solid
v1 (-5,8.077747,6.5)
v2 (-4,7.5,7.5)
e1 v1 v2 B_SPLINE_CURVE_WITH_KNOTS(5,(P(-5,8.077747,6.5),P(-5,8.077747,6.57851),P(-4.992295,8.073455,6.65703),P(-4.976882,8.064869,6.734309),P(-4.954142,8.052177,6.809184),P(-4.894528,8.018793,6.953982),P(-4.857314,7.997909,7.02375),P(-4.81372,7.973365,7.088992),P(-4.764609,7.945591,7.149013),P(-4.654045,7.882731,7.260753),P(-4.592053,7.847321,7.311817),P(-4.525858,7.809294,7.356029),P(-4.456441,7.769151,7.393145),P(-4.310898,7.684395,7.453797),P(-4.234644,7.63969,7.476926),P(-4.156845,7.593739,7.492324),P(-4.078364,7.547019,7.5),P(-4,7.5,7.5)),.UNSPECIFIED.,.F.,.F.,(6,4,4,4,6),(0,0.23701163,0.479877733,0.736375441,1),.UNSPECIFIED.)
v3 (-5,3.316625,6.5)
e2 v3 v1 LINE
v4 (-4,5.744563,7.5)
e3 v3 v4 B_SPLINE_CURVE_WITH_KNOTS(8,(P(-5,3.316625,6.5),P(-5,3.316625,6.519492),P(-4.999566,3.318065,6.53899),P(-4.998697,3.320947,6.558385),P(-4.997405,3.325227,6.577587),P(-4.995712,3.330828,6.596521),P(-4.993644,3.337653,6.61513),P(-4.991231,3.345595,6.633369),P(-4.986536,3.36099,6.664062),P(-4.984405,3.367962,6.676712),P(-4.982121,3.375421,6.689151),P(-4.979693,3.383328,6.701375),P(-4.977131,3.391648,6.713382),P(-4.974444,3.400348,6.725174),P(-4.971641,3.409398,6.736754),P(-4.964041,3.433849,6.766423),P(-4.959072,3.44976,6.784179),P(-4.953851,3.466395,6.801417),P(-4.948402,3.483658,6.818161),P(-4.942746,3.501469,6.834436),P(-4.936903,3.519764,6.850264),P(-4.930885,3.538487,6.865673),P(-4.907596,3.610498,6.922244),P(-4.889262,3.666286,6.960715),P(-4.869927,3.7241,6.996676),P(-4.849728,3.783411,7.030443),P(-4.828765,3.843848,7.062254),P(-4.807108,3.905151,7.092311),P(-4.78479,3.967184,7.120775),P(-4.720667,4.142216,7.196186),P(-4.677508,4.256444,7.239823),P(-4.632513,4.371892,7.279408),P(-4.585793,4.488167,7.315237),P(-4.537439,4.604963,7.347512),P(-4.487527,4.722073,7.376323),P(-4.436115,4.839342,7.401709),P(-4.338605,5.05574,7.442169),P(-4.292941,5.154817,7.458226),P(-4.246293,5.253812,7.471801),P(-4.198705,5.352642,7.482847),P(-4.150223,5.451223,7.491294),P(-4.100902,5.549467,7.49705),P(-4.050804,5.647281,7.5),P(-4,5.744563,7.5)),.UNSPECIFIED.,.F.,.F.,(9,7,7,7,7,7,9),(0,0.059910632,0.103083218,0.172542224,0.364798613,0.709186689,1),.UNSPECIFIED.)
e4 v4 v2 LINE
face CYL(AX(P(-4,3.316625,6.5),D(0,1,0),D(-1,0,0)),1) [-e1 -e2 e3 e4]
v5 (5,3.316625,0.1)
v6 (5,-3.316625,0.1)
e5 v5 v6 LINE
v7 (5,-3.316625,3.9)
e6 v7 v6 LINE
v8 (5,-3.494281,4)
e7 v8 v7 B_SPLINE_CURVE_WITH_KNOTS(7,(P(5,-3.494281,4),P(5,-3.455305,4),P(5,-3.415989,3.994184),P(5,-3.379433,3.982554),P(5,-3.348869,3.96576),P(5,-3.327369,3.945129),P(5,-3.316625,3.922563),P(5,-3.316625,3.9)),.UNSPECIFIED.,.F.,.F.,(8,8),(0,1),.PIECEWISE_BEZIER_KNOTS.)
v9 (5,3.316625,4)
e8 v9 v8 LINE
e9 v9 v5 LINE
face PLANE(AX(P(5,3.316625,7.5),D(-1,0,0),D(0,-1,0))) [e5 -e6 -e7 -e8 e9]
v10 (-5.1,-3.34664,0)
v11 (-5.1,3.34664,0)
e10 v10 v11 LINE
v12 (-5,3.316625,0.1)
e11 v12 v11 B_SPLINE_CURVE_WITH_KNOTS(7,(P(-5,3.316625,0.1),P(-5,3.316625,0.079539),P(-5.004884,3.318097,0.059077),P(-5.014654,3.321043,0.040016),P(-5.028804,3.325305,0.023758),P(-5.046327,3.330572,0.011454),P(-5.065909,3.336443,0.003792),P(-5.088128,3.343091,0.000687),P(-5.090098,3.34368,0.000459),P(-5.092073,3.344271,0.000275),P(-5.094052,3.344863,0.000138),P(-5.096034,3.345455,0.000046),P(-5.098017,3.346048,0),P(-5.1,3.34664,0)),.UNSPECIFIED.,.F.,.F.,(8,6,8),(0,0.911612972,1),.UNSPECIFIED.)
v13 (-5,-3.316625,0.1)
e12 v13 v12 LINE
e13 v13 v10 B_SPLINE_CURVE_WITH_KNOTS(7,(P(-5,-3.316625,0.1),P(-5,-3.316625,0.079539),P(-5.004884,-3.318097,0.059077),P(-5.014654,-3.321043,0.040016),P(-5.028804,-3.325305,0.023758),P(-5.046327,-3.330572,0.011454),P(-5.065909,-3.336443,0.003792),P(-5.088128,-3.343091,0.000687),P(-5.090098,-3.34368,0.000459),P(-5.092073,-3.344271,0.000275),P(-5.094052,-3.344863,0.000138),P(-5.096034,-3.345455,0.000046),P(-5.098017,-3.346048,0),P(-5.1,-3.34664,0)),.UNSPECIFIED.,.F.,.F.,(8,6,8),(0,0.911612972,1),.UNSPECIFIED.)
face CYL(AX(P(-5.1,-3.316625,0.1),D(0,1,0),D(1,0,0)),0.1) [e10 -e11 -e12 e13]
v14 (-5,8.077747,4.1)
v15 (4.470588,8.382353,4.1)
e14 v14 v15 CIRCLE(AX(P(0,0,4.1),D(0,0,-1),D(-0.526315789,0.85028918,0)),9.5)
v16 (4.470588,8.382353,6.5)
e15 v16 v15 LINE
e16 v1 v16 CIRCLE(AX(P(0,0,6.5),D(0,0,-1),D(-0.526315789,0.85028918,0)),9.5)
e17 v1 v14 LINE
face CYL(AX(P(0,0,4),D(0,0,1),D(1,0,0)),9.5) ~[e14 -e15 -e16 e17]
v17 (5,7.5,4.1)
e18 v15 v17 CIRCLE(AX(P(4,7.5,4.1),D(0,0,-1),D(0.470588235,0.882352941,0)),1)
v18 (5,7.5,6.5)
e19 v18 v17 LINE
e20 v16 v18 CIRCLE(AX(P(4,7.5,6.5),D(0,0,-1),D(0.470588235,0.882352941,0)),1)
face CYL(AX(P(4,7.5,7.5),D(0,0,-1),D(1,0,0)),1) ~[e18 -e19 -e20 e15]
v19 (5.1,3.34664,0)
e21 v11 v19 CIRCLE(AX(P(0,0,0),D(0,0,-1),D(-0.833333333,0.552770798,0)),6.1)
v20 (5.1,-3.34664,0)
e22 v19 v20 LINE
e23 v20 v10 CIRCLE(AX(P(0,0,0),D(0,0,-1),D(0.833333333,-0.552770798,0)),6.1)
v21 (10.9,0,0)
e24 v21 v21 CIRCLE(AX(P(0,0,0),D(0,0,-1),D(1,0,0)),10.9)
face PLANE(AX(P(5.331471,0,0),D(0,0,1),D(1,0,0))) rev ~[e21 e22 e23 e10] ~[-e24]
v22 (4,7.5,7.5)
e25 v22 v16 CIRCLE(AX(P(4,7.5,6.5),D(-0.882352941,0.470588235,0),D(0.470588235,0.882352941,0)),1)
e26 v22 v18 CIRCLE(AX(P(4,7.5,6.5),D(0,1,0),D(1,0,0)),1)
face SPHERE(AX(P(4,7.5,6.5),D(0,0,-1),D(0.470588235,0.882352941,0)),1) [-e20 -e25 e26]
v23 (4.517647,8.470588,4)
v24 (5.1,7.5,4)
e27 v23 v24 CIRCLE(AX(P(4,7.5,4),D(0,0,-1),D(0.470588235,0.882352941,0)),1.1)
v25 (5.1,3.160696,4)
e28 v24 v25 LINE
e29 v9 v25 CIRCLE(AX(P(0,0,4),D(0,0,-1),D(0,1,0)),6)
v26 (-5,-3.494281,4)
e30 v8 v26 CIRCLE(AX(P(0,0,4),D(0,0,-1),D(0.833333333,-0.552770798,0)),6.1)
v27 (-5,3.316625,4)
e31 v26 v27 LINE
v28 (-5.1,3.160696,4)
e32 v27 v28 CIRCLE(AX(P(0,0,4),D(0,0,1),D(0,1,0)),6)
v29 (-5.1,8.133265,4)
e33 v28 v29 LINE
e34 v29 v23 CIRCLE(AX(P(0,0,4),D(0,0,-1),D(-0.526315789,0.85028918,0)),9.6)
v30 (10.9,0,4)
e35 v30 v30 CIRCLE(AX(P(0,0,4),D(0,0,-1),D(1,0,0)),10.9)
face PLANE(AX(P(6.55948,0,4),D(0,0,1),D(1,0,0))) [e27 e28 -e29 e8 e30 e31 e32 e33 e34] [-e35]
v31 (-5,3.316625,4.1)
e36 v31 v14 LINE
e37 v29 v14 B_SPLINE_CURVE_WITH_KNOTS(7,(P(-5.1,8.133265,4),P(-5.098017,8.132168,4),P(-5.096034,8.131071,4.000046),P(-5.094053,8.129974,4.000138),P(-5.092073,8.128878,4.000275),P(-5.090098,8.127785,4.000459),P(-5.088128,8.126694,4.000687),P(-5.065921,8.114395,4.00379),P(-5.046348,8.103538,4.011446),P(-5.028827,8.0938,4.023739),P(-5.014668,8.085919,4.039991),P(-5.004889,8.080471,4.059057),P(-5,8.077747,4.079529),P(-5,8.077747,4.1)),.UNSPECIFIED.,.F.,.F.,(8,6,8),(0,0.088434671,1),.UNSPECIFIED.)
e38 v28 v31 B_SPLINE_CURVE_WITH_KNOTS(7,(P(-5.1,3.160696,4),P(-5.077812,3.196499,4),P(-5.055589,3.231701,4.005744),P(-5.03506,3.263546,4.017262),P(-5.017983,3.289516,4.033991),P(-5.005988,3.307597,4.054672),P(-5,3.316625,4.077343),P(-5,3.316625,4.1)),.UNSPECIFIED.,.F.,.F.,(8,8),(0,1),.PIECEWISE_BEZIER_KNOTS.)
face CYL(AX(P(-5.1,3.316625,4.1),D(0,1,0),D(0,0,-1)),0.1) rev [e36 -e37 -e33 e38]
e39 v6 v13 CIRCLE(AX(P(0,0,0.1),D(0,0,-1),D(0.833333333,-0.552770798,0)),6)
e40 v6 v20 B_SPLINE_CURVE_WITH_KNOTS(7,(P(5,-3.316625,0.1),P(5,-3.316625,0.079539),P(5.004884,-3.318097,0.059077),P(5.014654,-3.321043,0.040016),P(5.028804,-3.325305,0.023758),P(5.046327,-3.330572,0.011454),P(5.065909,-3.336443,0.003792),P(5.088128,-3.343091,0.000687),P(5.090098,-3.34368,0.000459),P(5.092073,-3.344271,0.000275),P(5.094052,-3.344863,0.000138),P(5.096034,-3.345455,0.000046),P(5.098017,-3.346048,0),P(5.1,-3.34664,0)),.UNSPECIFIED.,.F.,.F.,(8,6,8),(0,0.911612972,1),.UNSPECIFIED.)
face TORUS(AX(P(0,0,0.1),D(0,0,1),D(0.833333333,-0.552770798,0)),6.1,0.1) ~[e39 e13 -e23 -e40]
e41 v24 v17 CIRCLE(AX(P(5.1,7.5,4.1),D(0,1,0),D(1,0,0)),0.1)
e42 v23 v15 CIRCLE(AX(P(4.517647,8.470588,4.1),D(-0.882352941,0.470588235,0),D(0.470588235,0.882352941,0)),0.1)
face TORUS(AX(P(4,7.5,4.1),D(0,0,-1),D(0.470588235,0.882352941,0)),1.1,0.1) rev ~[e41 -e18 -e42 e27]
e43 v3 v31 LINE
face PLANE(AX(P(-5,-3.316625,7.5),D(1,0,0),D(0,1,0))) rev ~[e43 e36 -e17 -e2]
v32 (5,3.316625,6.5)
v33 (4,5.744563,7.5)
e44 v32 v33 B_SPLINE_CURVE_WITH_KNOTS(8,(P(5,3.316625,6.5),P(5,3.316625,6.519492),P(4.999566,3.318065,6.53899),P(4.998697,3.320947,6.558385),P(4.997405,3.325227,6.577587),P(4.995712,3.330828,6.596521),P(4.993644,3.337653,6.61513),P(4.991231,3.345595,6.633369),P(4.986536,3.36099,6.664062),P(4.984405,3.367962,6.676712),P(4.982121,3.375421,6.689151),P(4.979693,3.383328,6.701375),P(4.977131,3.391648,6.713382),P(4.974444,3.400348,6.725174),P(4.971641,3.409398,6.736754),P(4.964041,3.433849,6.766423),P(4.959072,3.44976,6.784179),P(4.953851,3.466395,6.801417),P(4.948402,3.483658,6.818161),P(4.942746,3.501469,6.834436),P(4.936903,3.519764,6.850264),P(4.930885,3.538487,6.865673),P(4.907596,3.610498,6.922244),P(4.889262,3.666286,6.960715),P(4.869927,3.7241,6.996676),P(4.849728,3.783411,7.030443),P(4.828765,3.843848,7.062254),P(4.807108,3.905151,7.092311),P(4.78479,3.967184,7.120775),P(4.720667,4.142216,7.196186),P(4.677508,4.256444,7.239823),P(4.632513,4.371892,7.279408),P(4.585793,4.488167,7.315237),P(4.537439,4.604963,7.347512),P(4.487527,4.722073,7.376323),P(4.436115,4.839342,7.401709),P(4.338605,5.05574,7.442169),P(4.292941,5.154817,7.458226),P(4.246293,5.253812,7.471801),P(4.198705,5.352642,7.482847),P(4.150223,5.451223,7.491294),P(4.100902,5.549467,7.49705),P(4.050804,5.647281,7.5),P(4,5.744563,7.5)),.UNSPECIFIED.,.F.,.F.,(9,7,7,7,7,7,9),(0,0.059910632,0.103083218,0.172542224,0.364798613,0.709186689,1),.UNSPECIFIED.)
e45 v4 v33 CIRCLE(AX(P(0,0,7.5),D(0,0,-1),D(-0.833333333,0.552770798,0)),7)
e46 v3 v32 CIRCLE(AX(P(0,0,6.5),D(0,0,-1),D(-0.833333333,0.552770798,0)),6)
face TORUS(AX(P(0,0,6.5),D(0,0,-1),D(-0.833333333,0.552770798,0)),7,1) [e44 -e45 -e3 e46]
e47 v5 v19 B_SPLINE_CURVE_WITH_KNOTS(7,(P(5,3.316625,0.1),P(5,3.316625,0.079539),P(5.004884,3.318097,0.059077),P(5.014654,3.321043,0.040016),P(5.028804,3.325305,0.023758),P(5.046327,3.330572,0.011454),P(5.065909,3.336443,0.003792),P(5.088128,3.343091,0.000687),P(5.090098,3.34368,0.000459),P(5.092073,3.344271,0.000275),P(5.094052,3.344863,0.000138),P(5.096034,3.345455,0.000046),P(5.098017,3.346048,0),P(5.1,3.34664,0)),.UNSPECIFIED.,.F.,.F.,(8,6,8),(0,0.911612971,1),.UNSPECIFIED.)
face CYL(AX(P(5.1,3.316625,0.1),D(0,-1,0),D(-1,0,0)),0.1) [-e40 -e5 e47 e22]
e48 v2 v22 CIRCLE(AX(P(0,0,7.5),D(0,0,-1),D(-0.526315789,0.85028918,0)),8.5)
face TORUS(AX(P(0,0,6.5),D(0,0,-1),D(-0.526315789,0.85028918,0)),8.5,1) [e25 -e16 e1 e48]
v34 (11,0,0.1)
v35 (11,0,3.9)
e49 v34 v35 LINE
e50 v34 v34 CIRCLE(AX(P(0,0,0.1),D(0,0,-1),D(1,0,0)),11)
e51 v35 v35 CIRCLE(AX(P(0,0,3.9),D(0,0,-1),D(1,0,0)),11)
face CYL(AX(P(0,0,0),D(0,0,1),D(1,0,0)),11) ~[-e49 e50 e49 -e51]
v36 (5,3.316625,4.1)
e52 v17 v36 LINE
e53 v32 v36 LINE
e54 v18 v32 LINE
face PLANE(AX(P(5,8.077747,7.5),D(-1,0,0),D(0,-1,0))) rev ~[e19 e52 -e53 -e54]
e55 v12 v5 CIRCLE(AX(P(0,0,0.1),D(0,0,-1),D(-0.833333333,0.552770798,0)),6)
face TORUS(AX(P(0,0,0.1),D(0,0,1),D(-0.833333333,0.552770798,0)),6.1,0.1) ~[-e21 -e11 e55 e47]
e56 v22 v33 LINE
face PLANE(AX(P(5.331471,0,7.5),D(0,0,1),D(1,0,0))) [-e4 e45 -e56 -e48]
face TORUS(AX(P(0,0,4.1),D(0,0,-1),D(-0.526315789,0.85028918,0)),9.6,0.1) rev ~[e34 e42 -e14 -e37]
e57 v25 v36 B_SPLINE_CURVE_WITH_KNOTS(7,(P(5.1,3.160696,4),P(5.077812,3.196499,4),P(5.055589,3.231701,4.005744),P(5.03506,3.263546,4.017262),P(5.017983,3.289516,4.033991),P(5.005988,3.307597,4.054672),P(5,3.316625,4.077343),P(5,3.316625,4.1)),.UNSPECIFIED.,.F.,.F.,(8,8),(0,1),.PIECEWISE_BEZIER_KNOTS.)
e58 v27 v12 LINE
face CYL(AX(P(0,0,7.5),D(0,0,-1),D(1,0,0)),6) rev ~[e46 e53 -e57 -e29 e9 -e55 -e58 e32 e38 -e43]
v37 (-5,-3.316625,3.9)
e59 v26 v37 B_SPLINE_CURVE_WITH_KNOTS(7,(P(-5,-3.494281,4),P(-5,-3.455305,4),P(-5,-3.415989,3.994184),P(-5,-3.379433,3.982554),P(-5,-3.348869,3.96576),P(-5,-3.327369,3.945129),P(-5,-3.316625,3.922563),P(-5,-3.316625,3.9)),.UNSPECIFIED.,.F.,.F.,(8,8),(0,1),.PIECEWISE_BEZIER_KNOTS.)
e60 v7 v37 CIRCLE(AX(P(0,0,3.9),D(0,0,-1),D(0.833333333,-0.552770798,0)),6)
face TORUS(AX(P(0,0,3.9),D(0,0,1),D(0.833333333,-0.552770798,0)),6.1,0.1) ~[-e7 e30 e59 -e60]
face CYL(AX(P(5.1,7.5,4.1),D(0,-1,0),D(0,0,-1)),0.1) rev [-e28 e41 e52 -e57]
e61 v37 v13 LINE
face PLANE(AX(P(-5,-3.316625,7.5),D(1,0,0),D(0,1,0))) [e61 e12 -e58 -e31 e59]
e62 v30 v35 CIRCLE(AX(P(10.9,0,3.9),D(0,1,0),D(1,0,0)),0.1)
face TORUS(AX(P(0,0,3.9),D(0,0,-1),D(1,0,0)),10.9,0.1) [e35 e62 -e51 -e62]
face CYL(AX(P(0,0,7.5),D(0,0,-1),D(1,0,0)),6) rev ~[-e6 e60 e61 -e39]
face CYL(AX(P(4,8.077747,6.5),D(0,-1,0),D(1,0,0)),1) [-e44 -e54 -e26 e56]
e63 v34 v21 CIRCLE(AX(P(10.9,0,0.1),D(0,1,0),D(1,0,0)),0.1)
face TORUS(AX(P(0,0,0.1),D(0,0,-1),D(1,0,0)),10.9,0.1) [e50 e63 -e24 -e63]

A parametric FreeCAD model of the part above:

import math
import FreeCAD as App
import Part
import Sketcher
Q = App.Units.Quantity


def edges_at(feature, points):
    """Names of the edges that pass closest to the given points."""
    edges = feature.Shape.Edges
    near = lambda p: min(range(len(edges)), key=lambda i: edges[i].distToShape(Part.Vertex(*p))[0])
    return sorted({f"Edge{near(p) + 1}" for p in points})


def add_polygon(sketch, points):
    """Adds a closed chain of lines whose ends are joined by coincident constraints."""
    first, n = sketch.GeometryCount, len(points)
    for a, b in zip(points, points[1:] + points[:1]):
        sketch.addGeometry(Part.LineSegment(App.Vector(*a, 0), App.Vector(*b, 0)), False)
    for i in range(n):
        sketch.addConstraint(Sketcher.Constraint("Coincident", first + i, 2, first + (i + 1) % n, 1))

doc = App.newDocument("Part")
params = doc.addObject("Spreadsheet::Sheet", "Params")
for row, (alias, value) in enumerate([
    ("sketch1_width", "5 mm"),
    ("sketch1_height", "4 mm"),
    ("sketch1_width2", "1.5 mm"),
    ("revolution_angle", "360 deg"),
    ("sketch2_radius", "6 mm"),
    ("pad1_length", "7.5 mm"),
    ("sketch3_radius", "6 mm"),
    ("sketch3_radius2", "9.5 mm"),
    ("pocket1_length", "3.5 mm"),
    ("fillet_radius", "1 mm"),
    ("fillet2_radius", "0.1 mm"),
], start=1):
    params.set(f"A{row}", alias)
    params.set(f"B{row}", "=" + value)
    params.setAlias(f"B{row}", alias)

body = doc.addObject("PartDesign::Body", "Body")

# Sketch on YZ plane
sketch1 = doc.addObject("Sketcher::SketchObject", "Sketch")
body.addObject(sketch1)
sketch1.AttachmentSupport = (doc.YZ_Plane, [""])
sketch1.MapMode = "FlatFace"
add_polygon(sketch1, [(6, 7.5), (6, 0), (11, 0), (11, 4), (9.5, 4), (9.5, 7.5)])  # lines 0-5
sketch1.addConstraint(Sketcher.Constraint("Vertical", 0))
sketch1.addConstraint(Sketcher.Constraint("Horizontal", 1))
sketch1.addConstraint(Sketcher.Constraint("Vertical", 2))
sketch1.addConstraint(Sketcher.Constraint("Horizontal", 3))
sketch1.addConstraint(Sketcher.Constraint("Vertical", 4))
sketch1.addConstraint(Sketcher.Constraint("Horizontal", 5))
sketch1.addConstraint(Sketcher.Constraint("PointOnObject", 0, 2, -1))
sketch1.addConstraint(Sketcher.Constraint("Equal", 5, 4))
sketch1.addConstraint(Sketcher.Constraint("DistanceX", 1, 1, 1, 2, Q("5 mm")))
sketch1.addConstraint(Sketcher.Constraint("DistanceY", 2, 1, 2, 2, Q("4 mm")))
sketch1.addConstraint(Sketcher.Constraint("DistanceX", 3, 2, 3, 1, Q("1.5 mm")))
sketch1.addConstraint(Sketcher.Constraint("DistanceX", -1, 1, 0, 2, Q("6 mm")))
sketch1.setExpression("Constraints[14]", "Params.sketch1_width")
sketch1.setExpression("Constraints[15]", "Params.sketch1_height")
sketch1.setExpression("Constraints[16]", "Params.sketch1_width2")
revolution = doc.addObject("PartDesign::Revolution", "Revolution")
body.addObject(revolution)
revolution.Profile = sketch1
revolution.ReferenceAxis = (sketch1, ["V_Axis"])
revolution.setExpression("Angle", "Params.revolution_angle")

# Sketch on XY plane
sketch2 = doc.addObject("Sketcher::SketchObject", "Sketch001")
body.addObject(sketch2)
sketch2.AttachmentSupport = (doc.XY_Plane, [""])
sketch2.MapMode = "FlatFace"
sketch2.AttachmentOffset = App.Placement(App.Vector(0, 0, 7.5), App.Rotation())
sketch2.addGeometry(Part.ArcOfCircle(Part.Circle(App.Vector(0, 0, 0), App.Vector(0, 0, 1), 6), math.radians(0), math.radians(34)), False)
sketch2.addGeometry(Part.LineSegment(App.Vector(5, 3.3, 0), App.Vector(5, -3.3, 0)), False)
sketch2.addGeometry(Part.ArcOfCircle(Part.Circle(App.Vector(0, 0, 0), App.Vector(0, 0, 1), 6), math.radians(-34), math.radians(0)), False)
sketch2.addGeometry(Part.LineSegment(App.Vector(-5, -3.3, 0), App.Vector(-5, 3.3, 0)), False)
sketch2.addGeometry(Part.ArcOfCircle(Part.Circle(App.Vector(0, 0, 0), App.Vector(0, 0, 1), 6), math.radians(146), math.radians(214)), False)
sketch2.addConstraint(Sketcher.Constraint("Coincident", 0, 2, 1, 1))
sketch2.addConstraint(Sketcher.Constraint("Coincident", 1, 2, 2, 1))
sketch2.addConstraint(Sketcher.Constraint("Tangent", 2, 2, 0, 1))
sketch2.addConstraint(Sketcher.Constraint("Coincident", 3, 1, 4, 2))
sketch2.addConstraint(Sketcher.Constraint("Coincident", 4, 1, 3, 2))
sketch2.addConstraint(Sketcher.Constraint("Vertical", 1))
sketch2.addConstraint(Sketcher.Constraint("Vertical", 3))
sketch2.addConstraint(Sketcher.Constraint("Coincident", 0, 3, -1, 1))
sketch2.addConstraint(Sketcher.Constraint("Coincident", 4, 3, -1, 1))
sketch2.addConstraint(Sketcher.Constraint("Equal", 0, 2))
sketch2.addConstraint(Sketcher.Constraint("Equal", 2, 4))
sketch2.addConstraint(Sketcher.Constraint("PointOnObject", 2, 2, -1))
sketch2.addConstraint(Sketcher.Constraint("Horizontal", 1, 2, 3, 1))
sketch2.addConstraint(Sketcher.Constraint("Radius", 0, Q("6 mm")))
sketch2.addConstraint(Sketcher.Constraint("DistanceX", -1, 1, 0, 2, Q("5 mm")))
sketch2.setExpression("Constraints[13]", "Params.sketch2_radius")
pad1 = doc.addObject("PartDesign::Pad", "Pad")
body.addObject(pad1)
pad1.Profile = sketch2
pad1.setExpression("Length", "Params.pad1_length")
pad1.Reversed = True

# Sketch on XY plane
sketch3 = doc.addObject("Sketcher::SketchObject", "Sketch002")
body.addObject(sketch3)
sketch3.AttachmentSupport = (doc.XY_Plane, [""])
sketch3.MapMode = "FlatFace"
sketch3.AttachmentOffset = App.Placement(App.Vector(0, 0, 7.5), App.Rotation())
sketch3.addGeometry(Part.ArcOfCircle(Part.Circle(App.Vector(0, 0, 0), App.Vector(0, 0, 1), 10), math.radians(0), math.radians(58)), False)
sketch3.addGeometry(Part.LineSegment(App.Vector(5, 8, 0), App.Vector(5, -3, 0)), False)
sketch3.addGeometry(Part.ArcOfCircle(Part.Circle(App.Vector(0, 0, 0), App.Vector(0, 0, 1), 6), math.radians(-146), math.radians(-34)), False)
sketch3.addGeometry(Part.LineSegment(App.Vector(-5, -3, 0), App.Vector(-5, 8, 0)), False)
sketch3.addGeometry(Part.ArcOfCircle(Part.Circle(App.Vector(0, 0, 0), App.Vector(0, 0, 1), 10), math.radians(122), math.radians(238)), False)
sketch3.addGeometry(Part.ArcOfCircle(Part.Circle(App.Vector(0, 0, 0), App.Vector(0, 0, 1), 10), math.radians(-122), math.radians(-58)), False)
sketch3.addGeometry(Part.ArcOfCircle(Part.Circle(App.Vector(0, 0, 0), App.Vector(0, 0, 1), 10), math.radians(-58), math.radians(0)), False)
sketch3.addConstraint(Sketcher.Constraint("Coincident", 0, 2, 1, 1))
sketch3.addConstraint(Sketcher.Constraint("Coincident", 1, 2, 2, 2))
sketch3.addConstraint(Sketcher.Constraint("Coincident", 2, 1, 3, 1))
sketch3.addConstraint(Sketcher.Constraint("Coincident", 3, 2, 4, 1))
sketch3.addConstraint(Sketcher.Constraint("Tangent", 4, 2, 5, 1))
sketch3.addConstraint(Sketcher.Constraint("Tangent", 5, 2, 6, 1))
sketch3.addConstraint(Sketcher.Constraint("Tangent", 6, 2, 0, 1))
sketch3.addConstraint(Sketcher.Constraint("Vertical", 1))
sketch3.addConstraint(Sketcher.Constraint("Vertical", 3))
sketch3.addConstraint(Sketcher.Constraint("Coincident", 0, 3, -1, 1))
sketch3.addConstraint(Sketcher.Constraint("Coincident", 2, 3, -1, 1))
sketch3.addConstraint(Sketcher.Constraint("Coincident", 4, 3, -1, 1))
sketch3.addConstraint(Sketcher.Constraint("Equal", 0, 4))
sketch3.addConstraint(Sketcher.Constraint("PointOnObject", 6, 2, -1))
sketch3.addConstraint(Sketcher.Constraint("Horizontal", 1, 2, 2, 1))
sketch3.addConstraint(Sketcher.Constraint("Horizontal", 4, 2, 5, 2))
sketch3.addConstraint(Sketcher.Constraint("Vertical", 3, 2, 4, 2))
sketch3.addConstraint(Sketcher.Constraint("Radius", 2, Q("6 mm")))
sketch3.addConstraint(Sketcher.Constraint("Radius", 0, Q("9.5 mm")))
sketch3.addConstraint(Sketcher.Constraint("DistanceX", -1, 1, 0, 2, Q("5 mm")))
sketch3.setExpression("Constraints[17]", "Params.sketch3_radius")
sketch3.setExpression("Constraints[18]", "Params.sketch3_radius2")
pocket1 = doc.addObject("PartDesign::Pocket", "Pocket")
body.addObject(pocket1)
pocket1.Profile = sketch3
pocket1.setExpression("Length", "Params.pocket1_length")
doc.recompute()

fillet = doc.addObject("PartDesign::Fillet", "Fillet")
body.addObject(fillet)
fillet.Base = (pocket1, edges_at(pocket1, [
    (-5, 5.697, 7.5),
    (5, 5.697, 7.5),
    (5, 8.078, 5.75),
    (0, 6, 7.5),
    (0, 9.5, 7.5),
]))
fillet.setExpression("Radius", "Params.fillet_radius")
doc.recompute()

fillet2 = doc.addObject("PartDesign::Fillet", "Fillet001")
body.addObject(fillet2)
fillet2.Base = (fillet, edges_at(fillet, [
    (-0.305, 9.495, 4),
    (4.857, 8.014, 4),
    (0, -6, 4),
    (-5, 5.697, 4),
    (5, 5.408, 4),
    (-11, 0, 0),
    (-11, 0, 4),
    (-5, 0, 0),
    (5, 0, 0),
    (0, 6, 0),
    (0, -6, 0),
]))
fillet2.setExpression("Radius", "Params.fillet2_radius")

doc.recompute()
